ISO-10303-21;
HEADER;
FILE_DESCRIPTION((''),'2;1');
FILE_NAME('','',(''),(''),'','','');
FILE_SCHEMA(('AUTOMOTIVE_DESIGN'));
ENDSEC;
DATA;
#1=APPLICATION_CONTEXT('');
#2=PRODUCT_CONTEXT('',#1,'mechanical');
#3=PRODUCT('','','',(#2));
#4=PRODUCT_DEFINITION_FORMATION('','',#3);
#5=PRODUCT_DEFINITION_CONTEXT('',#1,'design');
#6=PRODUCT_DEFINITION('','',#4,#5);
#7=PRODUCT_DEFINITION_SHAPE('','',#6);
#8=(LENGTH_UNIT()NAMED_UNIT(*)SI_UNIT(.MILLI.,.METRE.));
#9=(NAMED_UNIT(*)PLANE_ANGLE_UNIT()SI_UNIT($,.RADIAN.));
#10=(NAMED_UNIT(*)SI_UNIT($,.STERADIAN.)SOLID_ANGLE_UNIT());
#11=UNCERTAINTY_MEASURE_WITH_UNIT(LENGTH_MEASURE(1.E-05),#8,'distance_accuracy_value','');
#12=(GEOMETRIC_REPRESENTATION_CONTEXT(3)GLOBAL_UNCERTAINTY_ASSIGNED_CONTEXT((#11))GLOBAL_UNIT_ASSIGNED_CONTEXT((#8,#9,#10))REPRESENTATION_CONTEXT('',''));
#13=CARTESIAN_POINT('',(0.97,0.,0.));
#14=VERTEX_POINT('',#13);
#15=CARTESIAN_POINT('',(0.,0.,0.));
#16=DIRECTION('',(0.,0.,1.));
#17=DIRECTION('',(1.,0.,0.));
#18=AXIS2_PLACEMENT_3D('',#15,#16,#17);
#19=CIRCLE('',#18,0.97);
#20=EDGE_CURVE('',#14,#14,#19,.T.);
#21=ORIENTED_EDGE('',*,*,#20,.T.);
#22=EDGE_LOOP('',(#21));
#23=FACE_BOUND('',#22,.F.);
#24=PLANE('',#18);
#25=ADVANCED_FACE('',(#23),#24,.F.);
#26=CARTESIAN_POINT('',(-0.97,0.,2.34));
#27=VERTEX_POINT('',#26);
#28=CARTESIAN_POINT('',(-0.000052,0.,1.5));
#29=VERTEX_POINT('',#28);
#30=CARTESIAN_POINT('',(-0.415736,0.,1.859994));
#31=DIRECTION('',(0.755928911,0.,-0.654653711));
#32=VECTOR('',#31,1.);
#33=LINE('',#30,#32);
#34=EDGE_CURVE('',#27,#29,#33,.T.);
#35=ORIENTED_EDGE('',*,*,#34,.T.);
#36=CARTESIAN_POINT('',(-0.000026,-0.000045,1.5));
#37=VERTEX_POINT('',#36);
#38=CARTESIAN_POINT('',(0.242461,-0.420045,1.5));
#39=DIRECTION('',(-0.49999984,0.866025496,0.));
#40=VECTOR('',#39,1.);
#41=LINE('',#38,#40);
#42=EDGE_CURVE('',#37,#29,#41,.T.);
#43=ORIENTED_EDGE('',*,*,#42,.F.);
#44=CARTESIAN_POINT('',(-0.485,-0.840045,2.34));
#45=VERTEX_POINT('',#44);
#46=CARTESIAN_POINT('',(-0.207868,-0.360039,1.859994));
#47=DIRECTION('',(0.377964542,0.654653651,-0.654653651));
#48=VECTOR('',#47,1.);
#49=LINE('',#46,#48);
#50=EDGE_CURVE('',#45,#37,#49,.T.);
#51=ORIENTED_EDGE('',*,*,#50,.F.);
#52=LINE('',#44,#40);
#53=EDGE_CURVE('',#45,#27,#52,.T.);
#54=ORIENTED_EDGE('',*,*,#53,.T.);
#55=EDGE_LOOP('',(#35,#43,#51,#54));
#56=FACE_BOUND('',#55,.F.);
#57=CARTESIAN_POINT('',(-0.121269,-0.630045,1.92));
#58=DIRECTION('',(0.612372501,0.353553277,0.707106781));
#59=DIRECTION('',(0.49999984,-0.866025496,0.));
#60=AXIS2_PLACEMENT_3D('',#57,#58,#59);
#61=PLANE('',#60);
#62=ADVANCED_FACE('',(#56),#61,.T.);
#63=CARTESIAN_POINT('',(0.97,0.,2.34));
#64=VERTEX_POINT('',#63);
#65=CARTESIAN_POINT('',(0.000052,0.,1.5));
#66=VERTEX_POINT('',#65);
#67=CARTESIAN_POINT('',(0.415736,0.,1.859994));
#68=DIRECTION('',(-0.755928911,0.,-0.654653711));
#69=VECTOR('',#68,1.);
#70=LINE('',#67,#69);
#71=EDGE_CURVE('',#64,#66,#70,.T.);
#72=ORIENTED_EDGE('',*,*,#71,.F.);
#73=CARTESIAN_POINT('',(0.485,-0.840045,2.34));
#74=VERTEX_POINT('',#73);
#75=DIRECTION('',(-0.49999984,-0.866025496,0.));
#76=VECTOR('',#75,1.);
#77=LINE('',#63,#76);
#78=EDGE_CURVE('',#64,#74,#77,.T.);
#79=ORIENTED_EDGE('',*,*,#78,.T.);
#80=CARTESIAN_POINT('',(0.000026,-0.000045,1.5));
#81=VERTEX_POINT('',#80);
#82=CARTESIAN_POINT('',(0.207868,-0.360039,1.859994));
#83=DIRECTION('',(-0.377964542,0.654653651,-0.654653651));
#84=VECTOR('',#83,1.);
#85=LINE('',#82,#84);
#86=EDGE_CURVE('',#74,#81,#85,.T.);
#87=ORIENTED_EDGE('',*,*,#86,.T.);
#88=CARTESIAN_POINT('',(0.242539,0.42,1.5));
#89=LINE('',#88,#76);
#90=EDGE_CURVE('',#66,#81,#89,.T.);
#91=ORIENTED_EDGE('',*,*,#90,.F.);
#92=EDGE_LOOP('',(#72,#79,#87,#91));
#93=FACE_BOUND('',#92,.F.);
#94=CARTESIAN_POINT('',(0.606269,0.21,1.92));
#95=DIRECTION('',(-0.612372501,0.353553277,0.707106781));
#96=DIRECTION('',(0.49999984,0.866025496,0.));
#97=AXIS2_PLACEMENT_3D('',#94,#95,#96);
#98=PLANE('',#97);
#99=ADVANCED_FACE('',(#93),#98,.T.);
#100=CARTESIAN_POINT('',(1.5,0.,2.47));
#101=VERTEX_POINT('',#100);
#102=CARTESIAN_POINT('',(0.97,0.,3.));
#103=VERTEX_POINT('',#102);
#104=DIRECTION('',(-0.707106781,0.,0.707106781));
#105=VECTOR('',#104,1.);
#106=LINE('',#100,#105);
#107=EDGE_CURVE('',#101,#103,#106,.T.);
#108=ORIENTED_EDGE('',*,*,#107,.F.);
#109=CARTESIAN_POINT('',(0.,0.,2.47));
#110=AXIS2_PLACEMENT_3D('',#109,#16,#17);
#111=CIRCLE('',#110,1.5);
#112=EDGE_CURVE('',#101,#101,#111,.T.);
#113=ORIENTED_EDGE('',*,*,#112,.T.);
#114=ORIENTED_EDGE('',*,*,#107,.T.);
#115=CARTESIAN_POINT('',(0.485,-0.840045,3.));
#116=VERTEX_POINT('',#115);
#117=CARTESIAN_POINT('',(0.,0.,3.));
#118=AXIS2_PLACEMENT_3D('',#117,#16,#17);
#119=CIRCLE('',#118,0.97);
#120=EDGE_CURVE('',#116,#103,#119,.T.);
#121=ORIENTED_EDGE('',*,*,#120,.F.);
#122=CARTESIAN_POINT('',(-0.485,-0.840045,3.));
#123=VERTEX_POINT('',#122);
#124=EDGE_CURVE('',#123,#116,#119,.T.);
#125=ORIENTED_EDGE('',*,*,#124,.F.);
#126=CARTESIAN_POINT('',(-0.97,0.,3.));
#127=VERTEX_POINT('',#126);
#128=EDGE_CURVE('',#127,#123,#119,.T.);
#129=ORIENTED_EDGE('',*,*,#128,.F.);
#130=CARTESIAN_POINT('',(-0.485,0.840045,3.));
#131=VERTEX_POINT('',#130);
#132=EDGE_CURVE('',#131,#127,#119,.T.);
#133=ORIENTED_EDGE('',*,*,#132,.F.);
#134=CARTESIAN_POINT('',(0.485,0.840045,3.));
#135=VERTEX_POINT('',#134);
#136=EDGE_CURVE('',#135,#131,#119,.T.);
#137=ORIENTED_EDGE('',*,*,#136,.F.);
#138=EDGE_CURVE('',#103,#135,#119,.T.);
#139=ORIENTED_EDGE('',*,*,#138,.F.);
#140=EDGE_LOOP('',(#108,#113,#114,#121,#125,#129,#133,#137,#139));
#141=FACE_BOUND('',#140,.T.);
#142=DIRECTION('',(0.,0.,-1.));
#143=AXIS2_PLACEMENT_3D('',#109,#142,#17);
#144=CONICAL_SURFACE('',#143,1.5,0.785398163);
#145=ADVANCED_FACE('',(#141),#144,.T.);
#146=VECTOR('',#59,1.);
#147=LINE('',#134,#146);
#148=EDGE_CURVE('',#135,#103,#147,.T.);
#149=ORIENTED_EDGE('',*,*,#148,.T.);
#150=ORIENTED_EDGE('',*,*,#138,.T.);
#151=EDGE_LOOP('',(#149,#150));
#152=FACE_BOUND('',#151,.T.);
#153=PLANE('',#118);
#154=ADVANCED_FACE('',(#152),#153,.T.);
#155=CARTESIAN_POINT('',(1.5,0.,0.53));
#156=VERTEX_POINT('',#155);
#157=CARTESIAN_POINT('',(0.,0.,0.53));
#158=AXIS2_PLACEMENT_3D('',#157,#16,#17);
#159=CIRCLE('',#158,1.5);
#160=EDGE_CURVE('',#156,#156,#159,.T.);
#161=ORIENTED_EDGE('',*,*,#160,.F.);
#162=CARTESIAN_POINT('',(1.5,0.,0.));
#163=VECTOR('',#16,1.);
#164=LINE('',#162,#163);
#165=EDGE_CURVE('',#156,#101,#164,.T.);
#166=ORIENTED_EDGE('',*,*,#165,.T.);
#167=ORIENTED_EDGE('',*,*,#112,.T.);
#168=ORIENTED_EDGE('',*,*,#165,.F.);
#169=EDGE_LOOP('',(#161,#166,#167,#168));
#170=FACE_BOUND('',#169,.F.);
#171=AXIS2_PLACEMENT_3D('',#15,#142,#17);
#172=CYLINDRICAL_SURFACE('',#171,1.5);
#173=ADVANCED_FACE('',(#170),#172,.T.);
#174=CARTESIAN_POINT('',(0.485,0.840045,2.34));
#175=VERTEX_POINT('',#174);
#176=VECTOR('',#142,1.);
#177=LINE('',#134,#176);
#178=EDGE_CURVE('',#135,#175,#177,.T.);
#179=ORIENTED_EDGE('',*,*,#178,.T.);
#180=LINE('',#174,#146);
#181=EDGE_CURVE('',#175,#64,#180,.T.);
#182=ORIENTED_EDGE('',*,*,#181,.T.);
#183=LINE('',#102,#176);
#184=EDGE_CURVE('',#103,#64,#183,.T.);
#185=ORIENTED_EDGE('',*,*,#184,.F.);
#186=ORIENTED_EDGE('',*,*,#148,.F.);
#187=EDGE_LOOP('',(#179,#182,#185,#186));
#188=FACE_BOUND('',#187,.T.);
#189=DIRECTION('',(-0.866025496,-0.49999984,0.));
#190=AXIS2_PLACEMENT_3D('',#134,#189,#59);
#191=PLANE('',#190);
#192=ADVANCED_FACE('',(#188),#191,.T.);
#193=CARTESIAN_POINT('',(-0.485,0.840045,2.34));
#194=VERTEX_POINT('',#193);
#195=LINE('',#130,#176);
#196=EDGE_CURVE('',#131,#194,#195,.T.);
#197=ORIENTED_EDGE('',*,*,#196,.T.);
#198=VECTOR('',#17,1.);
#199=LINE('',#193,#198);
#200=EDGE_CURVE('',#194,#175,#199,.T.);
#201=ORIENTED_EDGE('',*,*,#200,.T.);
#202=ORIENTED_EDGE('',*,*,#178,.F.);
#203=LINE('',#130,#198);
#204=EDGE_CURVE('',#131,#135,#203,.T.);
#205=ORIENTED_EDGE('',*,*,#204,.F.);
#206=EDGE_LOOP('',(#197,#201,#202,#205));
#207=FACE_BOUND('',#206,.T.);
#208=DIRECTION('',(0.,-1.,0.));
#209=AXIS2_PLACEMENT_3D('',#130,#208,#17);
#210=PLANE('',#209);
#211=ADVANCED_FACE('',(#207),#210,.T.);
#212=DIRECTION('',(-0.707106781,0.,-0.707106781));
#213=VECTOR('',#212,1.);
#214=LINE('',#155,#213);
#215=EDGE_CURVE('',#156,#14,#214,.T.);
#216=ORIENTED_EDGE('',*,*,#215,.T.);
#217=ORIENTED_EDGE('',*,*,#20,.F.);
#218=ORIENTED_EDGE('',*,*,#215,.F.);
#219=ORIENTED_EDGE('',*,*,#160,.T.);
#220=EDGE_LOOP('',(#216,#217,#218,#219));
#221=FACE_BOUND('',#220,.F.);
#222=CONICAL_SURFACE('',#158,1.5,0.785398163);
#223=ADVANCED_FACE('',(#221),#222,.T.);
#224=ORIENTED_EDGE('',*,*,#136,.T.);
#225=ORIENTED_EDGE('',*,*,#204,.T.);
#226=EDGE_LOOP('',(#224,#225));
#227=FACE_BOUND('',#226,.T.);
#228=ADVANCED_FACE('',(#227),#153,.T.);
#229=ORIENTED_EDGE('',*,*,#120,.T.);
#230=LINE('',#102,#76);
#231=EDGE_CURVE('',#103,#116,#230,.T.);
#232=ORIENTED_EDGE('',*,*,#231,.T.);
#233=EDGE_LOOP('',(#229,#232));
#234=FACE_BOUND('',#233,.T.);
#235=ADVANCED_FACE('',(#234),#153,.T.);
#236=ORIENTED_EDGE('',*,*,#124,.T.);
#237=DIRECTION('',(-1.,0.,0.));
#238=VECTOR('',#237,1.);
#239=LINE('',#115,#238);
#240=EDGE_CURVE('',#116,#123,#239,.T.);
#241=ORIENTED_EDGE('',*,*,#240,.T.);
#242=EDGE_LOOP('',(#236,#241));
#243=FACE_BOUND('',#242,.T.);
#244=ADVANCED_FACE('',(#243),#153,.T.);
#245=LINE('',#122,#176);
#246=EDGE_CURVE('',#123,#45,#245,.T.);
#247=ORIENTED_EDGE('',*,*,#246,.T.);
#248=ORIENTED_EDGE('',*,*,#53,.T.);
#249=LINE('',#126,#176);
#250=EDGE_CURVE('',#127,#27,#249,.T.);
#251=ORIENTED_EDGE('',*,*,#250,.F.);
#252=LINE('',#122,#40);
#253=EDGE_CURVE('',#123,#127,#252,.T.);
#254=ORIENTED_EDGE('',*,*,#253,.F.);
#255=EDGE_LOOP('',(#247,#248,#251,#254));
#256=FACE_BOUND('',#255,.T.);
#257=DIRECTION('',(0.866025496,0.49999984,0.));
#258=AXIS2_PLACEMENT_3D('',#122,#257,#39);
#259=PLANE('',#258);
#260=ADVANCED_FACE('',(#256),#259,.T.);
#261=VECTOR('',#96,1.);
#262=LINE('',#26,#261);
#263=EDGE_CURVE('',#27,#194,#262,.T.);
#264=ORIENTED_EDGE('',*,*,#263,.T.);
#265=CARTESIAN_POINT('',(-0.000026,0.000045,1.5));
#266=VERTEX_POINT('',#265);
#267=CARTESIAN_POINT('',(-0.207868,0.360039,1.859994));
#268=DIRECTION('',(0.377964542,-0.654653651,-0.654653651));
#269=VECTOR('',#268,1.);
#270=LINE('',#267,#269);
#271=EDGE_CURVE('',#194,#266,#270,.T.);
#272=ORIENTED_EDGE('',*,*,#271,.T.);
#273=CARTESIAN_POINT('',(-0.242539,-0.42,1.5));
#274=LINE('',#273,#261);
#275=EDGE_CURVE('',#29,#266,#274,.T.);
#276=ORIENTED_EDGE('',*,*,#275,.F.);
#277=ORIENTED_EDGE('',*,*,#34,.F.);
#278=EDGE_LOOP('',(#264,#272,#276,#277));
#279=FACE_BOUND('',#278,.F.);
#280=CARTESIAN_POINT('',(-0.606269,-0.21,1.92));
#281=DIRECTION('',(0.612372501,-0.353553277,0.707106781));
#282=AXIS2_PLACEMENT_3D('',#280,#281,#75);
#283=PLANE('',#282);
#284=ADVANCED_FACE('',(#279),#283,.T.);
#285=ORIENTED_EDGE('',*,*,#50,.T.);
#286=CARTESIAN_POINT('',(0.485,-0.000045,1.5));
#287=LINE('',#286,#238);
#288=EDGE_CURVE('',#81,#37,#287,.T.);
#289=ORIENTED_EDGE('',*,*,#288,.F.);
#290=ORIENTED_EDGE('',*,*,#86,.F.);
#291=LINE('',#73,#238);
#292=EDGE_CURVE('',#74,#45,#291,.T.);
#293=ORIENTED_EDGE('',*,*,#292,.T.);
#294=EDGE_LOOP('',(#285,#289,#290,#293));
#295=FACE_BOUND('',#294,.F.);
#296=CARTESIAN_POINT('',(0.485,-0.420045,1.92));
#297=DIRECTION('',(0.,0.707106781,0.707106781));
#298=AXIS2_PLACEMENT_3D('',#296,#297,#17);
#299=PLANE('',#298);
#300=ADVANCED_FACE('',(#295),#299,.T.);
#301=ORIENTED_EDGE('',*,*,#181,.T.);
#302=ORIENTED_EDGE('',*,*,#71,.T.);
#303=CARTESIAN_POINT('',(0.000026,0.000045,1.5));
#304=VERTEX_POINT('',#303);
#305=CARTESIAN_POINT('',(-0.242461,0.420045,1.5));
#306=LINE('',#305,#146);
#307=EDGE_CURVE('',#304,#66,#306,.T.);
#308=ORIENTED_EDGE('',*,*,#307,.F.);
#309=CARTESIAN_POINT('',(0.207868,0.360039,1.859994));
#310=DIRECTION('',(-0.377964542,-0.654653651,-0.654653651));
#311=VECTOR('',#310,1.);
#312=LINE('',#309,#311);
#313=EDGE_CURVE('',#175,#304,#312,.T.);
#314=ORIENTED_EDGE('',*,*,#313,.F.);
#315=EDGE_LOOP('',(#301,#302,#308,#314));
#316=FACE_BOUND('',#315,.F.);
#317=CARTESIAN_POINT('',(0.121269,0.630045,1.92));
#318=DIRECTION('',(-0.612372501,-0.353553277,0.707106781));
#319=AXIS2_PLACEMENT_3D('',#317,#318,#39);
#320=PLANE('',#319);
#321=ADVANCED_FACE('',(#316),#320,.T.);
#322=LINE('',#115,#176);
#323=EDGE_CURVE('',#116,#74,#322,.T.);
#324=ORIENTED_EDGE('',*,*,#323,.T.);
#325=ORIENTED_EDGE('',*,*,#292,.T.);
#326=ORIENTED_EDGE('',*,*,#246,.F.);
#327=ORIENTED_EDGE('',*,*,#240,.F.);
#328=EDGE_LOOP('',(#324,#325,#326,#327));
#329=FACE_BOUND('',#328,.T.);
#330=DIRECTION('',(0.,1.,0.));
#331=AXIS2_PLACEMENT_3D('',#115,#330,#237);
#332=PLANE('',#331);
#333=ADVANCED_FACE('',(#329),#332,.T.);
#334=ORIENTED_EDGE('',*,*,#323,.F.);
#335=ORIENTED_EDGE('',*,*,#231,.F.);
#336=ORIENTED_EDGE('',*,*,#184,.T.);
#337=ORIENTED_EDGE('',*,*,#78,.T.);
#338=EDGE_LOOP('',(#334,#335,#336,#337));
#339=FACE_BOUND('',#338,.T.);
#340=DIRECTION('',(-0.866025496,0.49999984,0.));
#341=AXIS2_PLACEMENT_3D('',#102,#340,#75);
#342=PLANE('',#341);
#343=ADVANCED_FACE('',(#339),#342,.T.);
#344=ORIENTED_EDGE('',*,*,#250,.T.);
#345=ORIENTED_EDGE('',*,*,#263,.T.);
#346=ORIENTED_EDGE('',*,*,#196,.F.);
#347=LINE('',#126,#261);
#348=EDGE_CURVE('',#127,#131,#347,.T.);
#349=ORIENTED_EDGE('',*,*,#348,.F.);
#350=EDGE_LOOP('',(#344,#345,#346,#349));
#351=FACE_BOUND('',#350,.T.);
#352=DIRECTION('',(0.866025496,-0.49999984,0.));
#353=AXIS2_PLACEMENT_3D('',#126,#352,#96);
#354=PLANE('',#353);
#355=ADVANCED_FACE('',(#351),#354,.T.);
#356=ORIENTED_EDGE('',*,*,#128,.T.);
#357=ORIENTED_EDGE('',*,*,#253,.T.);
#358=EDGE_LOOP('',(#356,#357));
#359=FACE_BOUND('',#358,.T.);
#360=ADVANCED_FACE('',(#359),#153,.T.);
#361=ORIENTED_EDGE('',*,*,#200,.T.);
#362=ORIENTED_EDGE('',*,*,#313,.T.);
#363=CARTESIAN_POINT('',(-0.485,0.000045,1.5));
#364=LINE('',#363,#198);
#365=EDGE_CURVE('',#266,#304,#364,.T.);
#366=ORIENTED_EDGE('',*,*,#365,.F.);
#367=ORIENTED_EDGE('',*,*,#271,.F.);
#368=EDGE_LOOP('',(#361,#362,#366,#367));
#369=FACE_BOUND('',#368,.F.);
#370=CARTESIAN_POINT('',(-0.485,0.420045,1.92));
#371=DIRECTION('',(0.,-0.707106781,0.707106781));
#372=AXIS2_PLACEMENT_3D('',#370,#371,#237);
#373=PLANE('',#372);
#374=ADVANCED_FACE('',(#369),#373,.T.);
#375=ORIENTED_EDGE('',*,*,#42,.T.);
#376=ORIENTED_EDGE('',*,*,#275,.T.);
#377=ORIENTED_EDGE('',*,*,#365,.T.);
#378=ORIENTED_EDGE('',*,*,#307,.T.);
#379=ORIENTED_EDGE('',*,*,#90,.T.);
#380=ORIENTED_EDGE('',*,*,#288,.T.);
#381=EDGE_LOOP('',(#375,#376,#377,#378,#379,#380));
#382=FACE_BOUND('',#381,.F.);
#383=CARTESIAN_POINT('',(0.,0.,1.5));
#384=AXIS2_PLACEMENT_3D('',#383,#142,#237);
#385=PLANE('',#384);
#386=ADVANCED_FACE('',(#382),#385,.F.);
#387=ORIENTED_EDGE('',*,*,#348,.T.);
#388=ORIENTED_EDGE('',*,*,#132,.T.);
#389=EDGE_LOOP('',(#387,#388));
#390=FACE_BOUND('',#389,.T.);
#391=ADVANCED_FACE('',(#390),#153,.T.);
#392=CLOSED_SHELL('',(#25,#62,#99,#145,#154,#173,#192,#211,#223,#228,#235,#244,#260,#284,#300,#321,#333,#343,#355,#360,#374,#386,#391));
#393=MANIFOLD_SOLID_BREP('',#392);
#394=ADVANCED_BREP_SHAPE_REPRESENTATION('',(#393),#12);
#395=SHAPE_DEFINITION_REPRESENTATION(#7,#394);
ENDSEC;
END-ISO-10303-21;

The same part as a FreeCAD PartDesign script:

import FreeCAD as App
import Part
import Sketcher
from FreeCAD import Vector
Q = App.Units.Quantity


def edges_at(feature, points):
    """Names of the edges that pass closest to the given points."""
    edges = feature.Shape.Edges
    near = lambda p: min(range(len(edges)), key=lambda i: edges[i].distToShape(Part.Vertex(*p))[0])
    return sorted({f"Edge{near(p) + 1}" for p in points})

doc = App.newDocument("Part")
body = doc.addObject("PartDesign::Body", "Body")

# Sketch on XY plane
sketch1 = body.newObject("Sketcher::SketchObject", "Sketch")
sketch1.AttachmentSupport = (doc.getObject("XY_Plane"), [""])
sketch1.MapMode = "FlatFace"
sketch1.addGeometry(Part.Circle(Vector(0, 0, 0), Vector(0, 0, 1), 1.5), False)
sketch1.addConstraint([
    Sketcher.Constraint("Coincident", 0, 3, -1, 1),
    Sketcher.Constraint("Diameter", 0, Q("3 mm")),
])
pad1 = body.newObject("PartDesign::Pad", "Pad")
pad1.Profile = sketch1
pad1.Length = 3
doc.recompute()

chamfer = body.newObject("PartDesign::Chamfer", "Chamfer")
chamfer.Base = (pad1, edges_at(pad1, [(-1.5, 0, 3), (-1.5, 0, 0)]))
chamfer.Size = 0.53

# Sketch on XY plane
sketch2 = body.newObject("Sketcher::SketchObject", "Sketch001")
sketch2.AttachmentSupport = (doc.getObject("XY_Plane"), [""])
sketch2.MapMode = "FlatFace"
sketch2.AttachmentOffset = App.Placement(Vector(0, 0, 3), App.Rotation())
sketch2.addGeometry([
    Part.LineSegment(Vector(0.5, 0.8, 0), Vector(-0.5, 0.8, 0)),  # 0
    Part.LineSegment(Vector(-0.5, 0.8, 0), Vector(-1, 0, 0)),  # 1
    Part.LineSegment(Vector(-1, 0, 0), Vector(-0.5, -0.8, 0)),  # 2
    Part.LineSegment(Vector(-0.5, -0.8, 0), Vector(0.5, -0.8, 0)),  # 3
    Part.LineSegment(Vector(0.5, -0.8, 0), Vector(1, 0, 0)),  # 4
    Part.LineSegment(Vector(1, 0, 0), Vector(0.5, 0.8, 0)),  # 5
], False)
sketch2.addConstraint([
    Sketcher.Constraint("Coincident", 0, 2, 1, 1),
    Sketcher.Constraint("Coincident", 1, 2, 2, 1),
    Sketcher.Constraint("Coincident", 2, 2, 3, 1),
    Sketcher.Constraint("Coincident", 3, 2, 4, 1),
    Sketcher.Constraint("Coincident", 4, 2, 5, 1),
    Sketcher.Constraint("Coincident", 5, 2, 0, 1),
    Sketcher.Constraint("Horizontal", 0),
    Sketcher.Constraint("Horizontal", 3),
    Sketcher.Constraint("Symmetric", 0, 2, 3, 2, -1, 1),
    Sketcher.Constraint("Symmetric", 1, 2, 4, 2, -1, 1),
    Sketcher.Constraint("PointOnObject", 1, 2, -1),
    Sketcher.Constraint("Parallel", 2, 5),
    Sketcher.Constraint("Vertical", 0, 2, 2, 2),
    Sketcher.Constraint("Angle", 1, Q("-119.999989 deg")),
    Sketcher.Constraint("DistanceX", 0, 2, 0, 1, Q("0.97 mm")),
    Sketcher.Constraint("Distance", 1, Q("0.97 mm")),
])
pocket1 = body.newObject("PartDesign::Pocket", "Pocket")
pocket1.Profile = sketch2
pocket1.Length = 1.5
doc.recompute()

chamfer2 = body.newObject("PartDesign::Chamfer", "Chamfer001")
chamfer2.Base = (pocket1, edges_at(pocket1, [
    (0, 0.84, 1.5),
    (0.728, 0.42, 1.5),
    (0.728, -0.42, 1.5),
    (0, -0.84, 1.5),
    (-0.728, -0.42, 1.5),
    (-0.728, 0.42, 1.5),
]))
chamfer2.Size = 0.84

doc.recompute()
